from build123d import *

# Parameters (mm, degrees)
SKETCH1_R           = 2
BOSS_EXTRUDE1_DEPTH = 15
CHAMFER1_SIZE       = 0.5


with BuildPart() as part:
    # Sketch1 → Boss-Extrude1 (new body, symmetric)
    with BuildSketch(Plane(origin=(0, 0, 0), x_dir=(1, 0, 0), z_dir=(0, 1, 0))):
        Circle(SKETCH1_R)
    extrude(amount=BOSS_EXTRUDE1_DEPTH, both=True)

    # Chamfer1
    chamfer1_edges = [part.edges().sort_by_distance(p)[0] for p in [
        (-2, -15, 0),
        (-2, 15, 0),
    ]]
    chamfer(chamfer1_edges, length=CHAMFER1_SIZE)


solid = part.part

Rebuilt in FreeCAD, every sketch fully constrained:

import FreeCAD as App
import Part
import Sketcher
from FreeCAD import Vector
Q = App.Units.Quantity


def edges_at(feature, points):
    """Names of the edges that pass closest to the given points."""
    edges = feature.Shape.Edges
    near = lambda p: min(range(len(edges)), key=lambda i: edges[i].distToShape(Part.Vertex(*p))[0])
    return sorted({f"Edge{near(p) + 1}" for p in points})

doc = App.newDocument("Part")
params = doc.addObject("Spreadsheet::Sheet", "Params")
for row, (alias, value) in enumerate([
    ("sketch1_diameter", "4 mm"),
    ("pad1_length", "30 mm"),
    ("chamfer_size", "0.5 mm"),
], start=1):
    params.set(f"A{row}", alias)
    params.set(f"B{row}", "=" + value)
    params.setAlias(f"B{row}", alias)

body = doc.addObject("PartDesign::Body", "Body")

# Sketch on XZ plane
sketch1 = doc.addObject("Sketcher::SketchObject", "Sketch")
body.addObject(sketch1)
sketch1.AttachmentSupport = (doc.XZ_Plane, [""])
sketch1.MapMode = "FlatFace"
sketch1.addGeometry(Part.Circle(Vector(0, 0, 0), Vector(0, 0, 1), 2), False)
sketch1.addConstraint([
    Sketcher.Constraint("Coincident", 0, 3, -1, 1),
    Sketcher.Constraint("Diameter", 0, Q("4 mm")),
])
sketch1.setExpression("Constraints[1]", "Params.sketch1_diameter")
pad1 = doc.addObject("PartDesign::Pad", "Pad")
body.addObject(pad1)
pad1.Profile = sketch1
pad1.setExpression("Length", "Params.pad1_length")
pad1.Midplane = True
doc.recompute()

chamfer = doc.addObject("PartDesign::Chamfer", "Chamfer")
body.addObject(chamfer)
chamfer.Base = (pad1, edges_at(pad1, [(-2, -15, 0), (-2, 15, 0)]))
chamfer.setExpression("Size", "Params.chamfer_size")

doc.recompute()
